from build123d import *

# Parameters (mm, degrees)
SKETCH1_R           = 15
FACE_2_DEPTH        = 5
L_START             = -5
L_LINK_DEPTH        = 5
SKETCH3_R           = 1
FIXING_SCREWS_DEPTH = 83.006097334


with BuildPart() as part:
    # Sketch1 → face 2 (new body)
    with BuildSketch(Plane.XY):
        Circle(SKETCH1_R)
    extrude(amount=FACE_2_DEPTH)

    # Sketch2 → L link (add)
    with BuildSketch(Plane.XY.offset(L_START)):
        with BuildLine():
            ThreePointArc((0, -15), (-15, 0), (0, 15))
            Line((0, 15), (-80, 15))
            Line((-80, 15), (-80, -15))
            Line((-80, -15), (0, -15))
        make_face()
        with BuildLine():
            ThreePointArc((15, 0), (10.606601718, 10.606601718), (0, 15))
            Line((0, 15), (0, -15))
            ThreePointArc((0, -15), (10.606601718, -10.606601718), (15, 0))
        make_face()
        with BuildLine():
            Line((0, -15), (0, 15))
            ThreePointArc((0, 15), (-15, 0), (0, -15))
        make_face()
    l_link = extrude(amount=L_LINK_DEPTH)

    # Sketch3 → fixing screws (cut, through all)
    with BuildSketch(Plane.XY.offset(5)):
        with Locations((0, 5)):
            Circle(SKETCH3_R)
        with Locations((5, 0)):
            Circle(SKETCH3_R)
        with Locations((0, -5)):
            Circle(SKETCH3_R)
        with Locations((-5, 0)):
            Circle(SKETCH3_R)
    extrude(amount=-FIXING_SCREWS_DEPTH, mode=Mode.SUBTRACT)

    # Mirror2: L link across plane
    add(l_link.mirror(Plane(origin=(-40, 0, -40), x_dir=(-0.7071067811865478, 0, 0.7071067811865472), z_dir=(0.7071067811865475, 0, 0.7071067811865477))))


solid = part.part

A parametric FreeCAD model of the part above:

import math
import FreeCAD as App
import Part
import Sketcher
Q = App.Units.Quantity

doc = App.newDocument("Part")
params = doc.addObject("Spreadsheet::Sheet", "Params")
for row, (alias, value) in enumerate([
    ("sketch1_diameter", "30 mm"),
    ("pad1_length", "5 mm"),
    ("sketch2_radius", "15 mm"),
    ("sketch2_width", "80 mm"),
    ("pad2_length", "5 mm"),
    ("sketch3_diameter", "2 mm"),
], start=1):
    params.set(f"A{row}", alias)
    params.set(f"B{row}", "=" + value)
    params.setAlias(f"B{row}", alias)

body = doc.addObject("PartDesign::Body", "Body")

# Sketch on XY plane
sketch1 = body.newObject("Sketcher::SketchObject", "Sketch")
sketch1.AttachmentSupport = (doc.getObject("XY_Plane"), [""])
sketch1.MapMode = "FlatFace"
sketch1.addGeometry(Part.Circle(App.Vector(0, 0, 0), App.Vector(0, 0, 1), 15), False)
sketch1.addConstraint([
    Sketcher.Constraint("Coincident", 0, 3, -1, 1),
    Sketcher.Constraint("Diameter", 0, Q("30 mm")),
])
sketch1.setExpression("Constraints[1]", "Params.sketch1_diameter")
pad1 = body.newObject("PartDesign::Pad", "Pad")
pad1.Profile = sketch1
pad1.setExpression("Length", "Params.pad1_length")

# Sketch on XY plane
sketch2 = body.newObject("Sketcher::SketchObject", "Sketch001")
sketch2.AttachmentSupport = (doc.getObject("XY_Plane"), [""])
sketch2.MapMode = "FlatFace"
sketch2.AttachmentOffset = App.Placement(App.Vector(0, 0, -5), App.Rotation())
sketch2.addGeometry([
    Part.LineSegment(App.Vector(-80, 15, 0), App.Vector(-80, -15, 0)),  # 0
    Part.LineSegment(App.Vector(-80, -15, 0), App.Vector(0, -15, 0)),  # 1
    Part.ArcOfCircle(Part.Circle(App.Vector(0, 0, 0), App.Vector(0, 0, 1), 15), math.radians(-90), math.radians(0)),  # 2
    Part.ArcOfCircle(Part.Circle(App.Vector(0, 0, 0), App.Vector(0, 0, 1), 15), math.radians(0), math.radians(90)),  # 3
    Part.LineSegment(App.Vector(0, 15, 0), App.Vector(-80, 15, 0)),  # 4
], False)
sketch2.addConstraint([
    Sketcher.Constraint("Coincident", 0, 2, 1, 1),
    Sketcher.Constraint("Tangent", 1, 2, 2, 1),
    Sketcher.Constraint("Tangent", 2, 2, 3, 1),
    Sketcher.Constraint("Tangent", 3, 2, 4, 1),
    Sketcher.Constraint("Coincident", 4, 2, 0, 1),
    Sketcher.Constraint("Vertical", 0),
    Sketcher.Constraint("Horizontal", 1),
    Sketcher.Constraint("Horizontal", 4),
    Sketcher.Constraint("Coincident", 2, 3, -1, 1),
    Sketcher.Constraint("Equal", 2, 3),
    Sketcher.Constraint("PointOnObject", 2, 2, -1),
    Sketcher.Constraint("Radius", 2, Q("15 mm")),
    Sketcher.Constraint("DistanceX", 1, 1, 1, 2, Q("80 mm")),
])
sketch2.setExpression("Constraints[11]", "Params.sketch2_radius")
sketch2.setExpression("Constraints[12]", "Params.sketch2_width")
pad2 = body.newObject("PartDesign::Pad", "Pad001")
pad2.Profile = sketch2
pad2.setExpression("Length", "Params.pad2_length")

# Sketch on XY plane
sketch3 = body.newObject("Sketcher::SketchObject", "Sketch002")
sketch3.AttachmentSupport = (doc.getObject("XY_Plane"), [""])
sketch3.MapMode = "FlatFace"
sketch3.AttachmentOffset = App.Placement(App.Vector(0, 0, 5), App.Rotation())
sketch3.addGeometry([
    Part.Circle(App.Vector(0, 5, 0), App.Vector(0, 0, 1), 1),
    Part.Circle(App.Vector(5, 0, 0), App.Vector(0, 0, 1), 1),
    Part.Circle(App.Vector(0, -5, 0), App.Vector(0, 0, 1), 1),
    Part.Circle(App.Vector(-5, 0, 0), App.Vector(0, 0, 1), 1),
], False)
sketch3.addConstraint([
    Sketcher.Constraint("Equal", 0, 1),
    Sketcher.Constraint("Equal", 1, 2),
    Sketcher.Constraint("Equal", 2, 3),
    Sketcher.Constraint("Symmetric", 0, 3, 2, 3, -1, 1),
    Sketcher.Constraint("Symmetric", 1, 3, 3, 3, -1, 1),
    Sketcher.Constraint("PointOnObject", 0, 3, -2),
    Sketcher.Constraint("PointOnObject", 1, 3, -1),
    Sketcher.Constraint("Diameter", 0, Q("2 mm")),
    Sketcher.Constraint("DistanceY", -1, 1, 0, 3, Q("5 mm")),
    Sketcher.Constraint("DistanceX", -1, 1, 1, 3, Q("5 mm")),
])
sketch3.setExpression("Constraints[7]", "Params.sketch3_diameter")
pocket1 = body.newObject("PartDesign::Pocket", "Pocket")
pocket1.Profile = sketch3
pocket1.Type = "ThroughAll"
doc.recompute()

datumplane = body.newObject("PartDesign::Plane", "DatumPlane")
datumplane.Placement = App.Placement(App.Vector(-40, 0, -40), App.Rotation(App.Vector(-0.707106781, 0, 0.707106781), App.Vector(0, -1, 0), App.Vector(0.707106781, 0, 0.707106781), "ZXY"))
mirrored = body.newObject("PartDesign::Mirrored", "Mirrored")
mirrored.Originals = [pad2]
mirrored.MirrorPlane = (datumplane, [""])
body.Tip = mirrored

doc.recompute()
